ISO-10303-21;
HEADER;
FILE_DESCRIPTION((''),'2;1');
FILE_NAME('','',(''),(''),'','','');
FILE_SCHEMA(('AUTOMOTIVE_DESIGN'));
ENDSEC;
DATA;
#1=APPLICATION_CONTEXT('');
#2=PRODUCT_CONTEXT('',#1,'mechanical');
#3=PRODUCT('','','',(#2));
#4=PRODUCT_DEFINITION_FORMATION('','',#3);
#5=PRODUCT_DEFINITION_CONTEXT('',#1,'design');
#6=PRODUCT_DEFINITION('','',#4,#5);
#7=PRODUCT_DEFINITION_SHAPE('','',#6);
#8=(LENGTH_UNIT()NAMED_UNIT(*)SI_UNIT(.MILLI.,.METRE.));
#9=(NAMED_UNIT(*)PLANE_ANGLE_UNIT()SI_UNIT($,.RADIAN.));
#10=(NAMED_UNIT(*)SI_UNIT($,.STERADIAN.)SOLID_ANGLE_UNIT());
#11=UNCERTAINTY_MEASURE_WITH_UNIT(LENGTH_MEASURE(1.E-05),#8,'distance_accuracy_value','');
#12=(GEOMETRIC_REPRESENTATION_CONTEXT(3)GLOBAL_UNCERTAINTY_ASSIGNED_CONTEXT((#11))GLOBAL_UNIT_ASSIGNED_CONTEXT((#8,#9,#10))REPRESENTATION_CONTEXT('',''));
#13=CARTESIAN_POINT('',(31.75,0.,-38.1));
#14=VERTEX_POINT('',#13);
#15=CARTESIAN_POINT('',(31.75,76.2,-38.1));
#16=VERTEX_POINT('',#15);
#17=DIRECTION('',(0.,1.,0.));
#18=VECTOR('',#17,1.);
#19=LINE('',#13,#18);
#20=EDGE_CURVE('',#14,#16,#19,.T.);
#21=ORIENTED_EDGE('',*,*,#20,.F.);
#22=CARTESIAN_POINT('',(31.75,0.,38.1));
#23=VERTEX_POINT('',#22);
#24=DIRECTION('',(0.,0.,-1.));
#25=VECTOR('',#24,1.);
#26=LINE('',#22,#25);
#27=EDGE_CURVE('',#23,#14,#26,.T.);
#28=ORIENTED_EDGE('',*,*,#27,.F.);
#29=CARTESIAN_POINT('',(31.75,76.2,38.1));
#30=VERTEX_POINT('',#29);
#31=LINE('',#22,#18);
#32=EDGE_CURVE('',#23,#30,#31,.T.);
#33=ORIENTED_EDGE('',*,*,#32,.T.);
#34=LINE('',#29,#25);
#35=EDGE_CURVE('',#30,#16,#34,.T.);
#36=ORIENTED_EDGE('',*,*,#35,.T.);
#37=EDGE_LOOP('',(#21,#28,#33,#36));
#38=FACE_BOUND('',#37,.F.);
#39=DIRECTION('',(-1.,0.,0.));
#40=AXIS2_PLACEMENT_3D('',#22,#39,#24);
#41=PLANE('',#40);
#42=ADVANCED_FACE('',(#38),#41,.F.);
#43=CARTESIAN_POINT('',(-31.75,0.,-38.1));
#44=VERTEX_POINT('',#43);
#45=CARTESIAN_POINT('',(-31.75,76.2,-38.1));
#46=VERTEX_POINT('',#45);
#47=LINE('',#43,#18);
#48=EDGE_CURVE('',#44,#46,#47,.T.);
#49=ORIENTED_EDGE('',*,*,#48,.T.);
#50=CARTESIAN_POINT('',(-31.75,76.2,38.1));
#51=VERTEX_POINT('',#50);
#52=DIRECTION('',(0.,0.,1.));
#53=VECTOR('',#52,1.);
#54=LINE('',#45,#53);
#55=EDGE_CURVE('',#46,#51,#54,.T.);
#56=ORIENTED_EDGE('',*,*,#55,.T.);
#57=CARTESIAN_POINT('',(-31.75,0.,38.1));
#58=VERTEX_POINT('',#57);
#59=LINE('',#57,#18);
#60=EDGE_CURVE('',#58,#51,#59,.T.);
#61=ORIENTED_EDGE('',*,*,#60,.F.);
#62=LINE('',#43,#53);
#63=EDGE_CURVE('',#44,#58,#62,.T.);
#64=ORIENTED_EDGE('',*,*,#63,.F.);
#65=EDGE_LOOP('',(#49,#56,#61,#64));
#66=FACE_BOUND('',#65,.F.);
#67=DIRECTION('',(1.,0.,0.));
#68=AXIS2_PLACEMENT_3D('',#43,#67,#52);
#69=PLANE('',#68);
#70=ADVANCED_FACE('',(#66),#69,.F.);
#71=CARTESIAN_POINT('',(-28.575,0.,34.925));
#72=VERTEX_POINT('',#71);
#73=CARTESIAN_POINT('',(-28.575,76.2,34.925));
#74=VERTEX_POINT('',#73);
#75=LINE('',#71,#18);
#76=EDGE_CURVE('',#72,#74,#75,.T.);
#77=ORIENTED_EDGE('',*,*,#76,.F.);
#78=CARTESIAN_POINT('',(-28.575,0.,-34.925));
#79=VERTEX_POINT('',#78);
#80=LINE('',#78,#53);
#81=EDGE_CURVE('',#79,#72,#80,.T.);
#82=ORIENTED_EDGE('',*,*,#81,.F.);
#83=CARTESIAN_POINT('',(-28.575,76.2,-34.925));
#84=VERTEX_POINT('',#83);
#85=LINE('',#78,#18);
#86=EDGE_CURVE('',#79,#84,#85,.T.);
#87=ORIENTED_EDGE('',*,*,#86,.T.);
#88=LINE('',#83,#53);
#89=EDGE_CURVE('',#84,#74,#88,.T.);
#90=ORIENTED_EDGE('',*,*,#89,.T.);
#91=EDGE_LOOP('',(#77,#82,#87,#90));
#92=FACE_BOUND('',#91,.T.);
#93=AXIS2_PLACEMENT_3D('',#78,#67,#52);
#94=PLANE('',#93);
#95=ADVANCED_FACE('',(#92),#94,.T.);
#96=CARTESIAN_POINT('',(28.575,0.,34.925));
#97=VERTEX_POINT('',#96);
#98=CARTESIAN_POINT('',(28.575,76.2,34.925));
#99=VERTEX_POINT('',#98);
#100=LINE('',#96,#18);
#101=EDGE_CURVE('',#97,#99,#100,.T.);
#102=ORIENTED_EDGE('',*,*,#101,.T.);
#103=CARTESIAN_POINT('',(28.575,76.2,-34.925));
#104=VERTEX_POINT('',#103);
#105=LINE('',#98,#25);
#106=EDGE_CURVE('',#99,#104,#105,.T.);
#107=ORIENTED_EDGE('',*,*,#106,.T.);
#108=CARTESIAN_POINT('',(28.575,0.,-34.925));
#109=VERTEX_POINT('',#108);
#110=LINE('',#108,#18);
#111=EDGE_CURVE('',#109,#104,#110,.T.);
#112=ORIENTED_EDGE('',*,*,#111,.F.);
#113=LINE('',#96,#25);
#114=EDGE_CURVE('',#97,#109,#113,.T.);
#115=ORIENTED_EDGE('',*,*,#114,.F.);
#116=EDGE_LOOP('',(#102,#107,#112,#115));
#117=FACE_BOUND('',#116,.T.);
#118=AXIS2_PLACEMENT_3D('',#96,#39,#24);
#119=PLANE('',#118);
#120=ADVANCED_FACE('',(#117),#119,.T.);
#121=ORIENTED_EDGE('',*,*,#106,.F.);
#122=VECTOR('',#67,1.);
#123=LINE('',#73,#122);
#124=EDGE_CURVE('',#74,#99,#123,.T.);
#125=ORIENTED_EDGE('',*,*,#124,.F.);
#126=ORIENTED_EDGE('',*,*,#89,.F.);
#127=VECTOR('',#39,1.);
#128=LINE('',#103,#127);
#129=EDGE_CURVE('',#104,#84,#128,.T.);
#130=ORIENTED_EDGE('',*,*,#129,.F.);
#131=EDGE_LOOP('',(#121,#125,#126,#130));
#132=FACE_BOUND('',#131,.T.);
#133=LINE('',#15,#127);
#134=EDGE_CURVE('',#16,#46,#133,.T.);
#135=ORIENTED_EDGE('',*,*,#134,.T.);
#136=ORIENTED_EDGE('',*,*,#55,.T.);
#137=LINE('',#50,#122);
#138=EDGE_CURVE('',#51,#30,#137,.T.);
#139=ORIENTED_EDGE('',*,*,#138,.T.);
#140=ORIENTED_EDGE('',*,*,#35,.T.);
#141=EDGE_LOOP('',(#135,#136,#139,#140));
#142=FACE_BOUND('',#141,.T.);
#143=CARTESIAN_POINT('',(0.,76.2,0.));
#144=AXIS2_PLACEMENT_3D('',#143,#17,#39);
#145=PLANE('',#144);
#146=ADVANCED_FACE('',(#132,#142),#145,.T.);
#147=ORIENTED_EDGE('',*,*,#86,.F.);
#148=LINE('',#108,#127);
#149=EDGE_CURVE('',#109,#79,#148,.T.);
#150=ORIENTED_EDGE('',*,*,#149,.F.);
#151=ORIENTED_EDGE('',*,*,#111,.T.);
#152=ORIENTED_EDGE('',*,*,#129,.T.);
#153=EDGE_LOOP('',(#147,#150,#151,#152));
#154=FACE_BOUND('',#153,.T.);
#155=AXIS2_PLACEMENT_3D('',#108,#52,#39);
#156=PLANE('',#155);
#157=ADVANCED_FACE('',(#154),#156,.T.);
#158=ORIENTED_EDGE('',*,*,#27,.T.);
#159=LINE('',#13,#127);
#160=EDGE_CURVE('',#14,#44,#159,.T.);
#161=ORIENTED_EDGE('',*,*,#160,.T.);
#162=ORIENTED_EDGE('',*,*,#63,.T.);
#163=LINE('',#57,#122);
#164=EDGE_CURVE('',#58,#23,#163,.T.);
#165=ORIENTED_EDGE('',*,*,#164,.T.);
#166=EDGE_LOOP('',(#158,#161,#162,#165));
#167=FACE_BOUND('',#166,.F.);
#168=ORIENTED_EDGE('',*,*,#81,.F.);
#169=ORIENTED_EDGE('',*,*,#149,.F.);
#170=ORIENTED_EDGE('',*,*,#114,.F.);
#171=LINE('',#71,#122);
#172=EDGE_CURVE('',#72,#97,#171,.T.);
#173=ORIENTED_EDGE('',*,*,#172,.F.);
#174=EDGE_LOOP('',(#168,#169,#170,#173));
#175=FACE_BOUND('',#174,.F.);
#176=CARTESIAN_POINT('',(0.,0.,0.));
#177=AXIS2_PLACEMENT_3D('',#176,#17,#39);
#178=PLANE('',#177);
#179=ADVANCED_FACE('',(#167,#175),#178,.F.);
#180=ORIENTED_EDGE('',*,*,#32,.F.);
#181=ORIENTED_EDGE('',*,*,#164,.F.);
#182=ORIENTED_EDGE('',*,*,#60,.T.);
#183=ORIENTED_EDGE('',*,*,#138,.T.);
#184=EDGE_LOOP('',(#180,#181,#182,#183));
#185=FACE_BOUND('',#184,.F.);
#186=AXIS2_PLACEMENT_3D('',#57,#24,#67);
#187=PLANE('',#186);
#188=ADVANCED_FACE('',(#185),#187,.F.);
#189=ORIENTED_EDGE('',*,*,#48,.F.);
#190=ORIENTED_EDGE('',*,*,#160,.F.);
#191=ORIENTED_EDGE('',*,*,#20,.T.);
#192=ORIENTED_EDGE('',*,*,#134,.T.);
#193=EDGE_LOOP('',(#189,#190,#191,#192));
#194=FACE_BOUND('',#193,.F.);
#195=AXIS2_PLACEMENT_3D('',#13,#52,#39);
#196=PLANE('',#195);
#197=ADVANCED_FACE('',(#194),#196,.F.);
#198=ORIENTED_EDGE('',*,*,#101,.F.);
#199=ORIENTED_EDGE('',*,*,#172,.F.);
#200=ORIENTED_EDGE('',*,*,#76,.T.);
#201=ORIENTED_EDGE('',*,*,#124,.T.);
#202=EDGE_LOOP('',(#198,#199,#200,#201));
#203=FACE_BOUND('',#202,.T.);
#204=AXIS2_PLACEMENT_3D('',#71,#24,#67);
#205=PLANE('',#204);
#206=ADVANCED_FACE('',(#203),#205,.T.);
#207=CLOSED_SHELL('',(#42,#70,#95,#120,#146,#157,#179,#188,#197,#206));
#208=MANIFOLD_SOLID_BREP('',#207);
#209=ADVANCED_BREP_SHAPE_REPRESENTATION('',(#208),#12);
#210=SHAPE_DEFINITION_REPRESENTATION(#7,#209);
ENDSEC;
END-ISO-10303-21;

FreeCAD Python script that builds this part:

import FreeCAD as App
import Part
import Sketcher
from FreeCAD import Vector
Q = App.Units.Quantity


def add_polygon(sketch, points):
    """Adds a closed chain of lines whose ends are joined by coincident constraints."""
    first, n = sketch.GeometryCount, len(points)
    for a, b in zip(points, points[1:] + points[:1]):
        sketch.addGeometry(Part.LineSegment(App.Vector(*a, 0), App.Vector(*b, 0)), False)
    for i in range(n):
        sketch.addConstraint(Sketcher.Constraint("Coincident", first + i, 2, first + (i + 1) % n, 1))

doc = App.newDocument("Part")
body = doc.addObject("PartDesign::Body", "Body")

sketch1 = body.newObject("Sketcher::SketchObject", "Sketch")
sketch1.AttachmentSupport = (doc.getObject("XZ_Plane"), [""])
sketch1.MapMode = "FlatFace"
add_polygon(sketch1, [(-32, 38), (32, 38), (32, -38), (-32, -38)])
add_polygon(sketch1, [(29, -35), (29, 35), (-29, 35), (-29, -35)])
sketch1.addConstraint([
    Sketcher.Constraint("Horizontal", 0),
    Sketcher.Constraint("Vertical", 1),
    Sketcher.Constraint("Horizontal", 2),
    Sketcher.Constraint("Vertical", 3),
    Sketcher.Constraint("Vertical", 4),
    Sketcher.Constraint("Horizontal", 5),
    Sketcher.Constraint("Vertical", 6),
    Sketcher.Constraint("Horizontal", 7),
    Sketcher.Constraint("Symmetric", 0, 2, 2, 2, -1, 1),
    Sketcher.Constraint("Symmetric", 4, 2, 6, 2, -1, 1),
    Sketcher.Constraint("DistanceY", 1, 2, 1, 1, Q("3 in")),
    Sketcher.Constraint("DistanceX", 0, 1, 0, 2, Q("2.5 in")),
    Sketcher.Constraint("DistanceX", 4, 2, 0, 2, Q("0.125 in")),
    Sketcher.Constraint("DistanceY", 4, 2, 0, 2, Q("0.125 in")),
])
pad1 = body.newObject("PartDesign::Pad", "Pad")
pad1.Profile = sketch1
pad1.Length = Q("3 in")
pad1.Reversed = True

doc.recompute()
